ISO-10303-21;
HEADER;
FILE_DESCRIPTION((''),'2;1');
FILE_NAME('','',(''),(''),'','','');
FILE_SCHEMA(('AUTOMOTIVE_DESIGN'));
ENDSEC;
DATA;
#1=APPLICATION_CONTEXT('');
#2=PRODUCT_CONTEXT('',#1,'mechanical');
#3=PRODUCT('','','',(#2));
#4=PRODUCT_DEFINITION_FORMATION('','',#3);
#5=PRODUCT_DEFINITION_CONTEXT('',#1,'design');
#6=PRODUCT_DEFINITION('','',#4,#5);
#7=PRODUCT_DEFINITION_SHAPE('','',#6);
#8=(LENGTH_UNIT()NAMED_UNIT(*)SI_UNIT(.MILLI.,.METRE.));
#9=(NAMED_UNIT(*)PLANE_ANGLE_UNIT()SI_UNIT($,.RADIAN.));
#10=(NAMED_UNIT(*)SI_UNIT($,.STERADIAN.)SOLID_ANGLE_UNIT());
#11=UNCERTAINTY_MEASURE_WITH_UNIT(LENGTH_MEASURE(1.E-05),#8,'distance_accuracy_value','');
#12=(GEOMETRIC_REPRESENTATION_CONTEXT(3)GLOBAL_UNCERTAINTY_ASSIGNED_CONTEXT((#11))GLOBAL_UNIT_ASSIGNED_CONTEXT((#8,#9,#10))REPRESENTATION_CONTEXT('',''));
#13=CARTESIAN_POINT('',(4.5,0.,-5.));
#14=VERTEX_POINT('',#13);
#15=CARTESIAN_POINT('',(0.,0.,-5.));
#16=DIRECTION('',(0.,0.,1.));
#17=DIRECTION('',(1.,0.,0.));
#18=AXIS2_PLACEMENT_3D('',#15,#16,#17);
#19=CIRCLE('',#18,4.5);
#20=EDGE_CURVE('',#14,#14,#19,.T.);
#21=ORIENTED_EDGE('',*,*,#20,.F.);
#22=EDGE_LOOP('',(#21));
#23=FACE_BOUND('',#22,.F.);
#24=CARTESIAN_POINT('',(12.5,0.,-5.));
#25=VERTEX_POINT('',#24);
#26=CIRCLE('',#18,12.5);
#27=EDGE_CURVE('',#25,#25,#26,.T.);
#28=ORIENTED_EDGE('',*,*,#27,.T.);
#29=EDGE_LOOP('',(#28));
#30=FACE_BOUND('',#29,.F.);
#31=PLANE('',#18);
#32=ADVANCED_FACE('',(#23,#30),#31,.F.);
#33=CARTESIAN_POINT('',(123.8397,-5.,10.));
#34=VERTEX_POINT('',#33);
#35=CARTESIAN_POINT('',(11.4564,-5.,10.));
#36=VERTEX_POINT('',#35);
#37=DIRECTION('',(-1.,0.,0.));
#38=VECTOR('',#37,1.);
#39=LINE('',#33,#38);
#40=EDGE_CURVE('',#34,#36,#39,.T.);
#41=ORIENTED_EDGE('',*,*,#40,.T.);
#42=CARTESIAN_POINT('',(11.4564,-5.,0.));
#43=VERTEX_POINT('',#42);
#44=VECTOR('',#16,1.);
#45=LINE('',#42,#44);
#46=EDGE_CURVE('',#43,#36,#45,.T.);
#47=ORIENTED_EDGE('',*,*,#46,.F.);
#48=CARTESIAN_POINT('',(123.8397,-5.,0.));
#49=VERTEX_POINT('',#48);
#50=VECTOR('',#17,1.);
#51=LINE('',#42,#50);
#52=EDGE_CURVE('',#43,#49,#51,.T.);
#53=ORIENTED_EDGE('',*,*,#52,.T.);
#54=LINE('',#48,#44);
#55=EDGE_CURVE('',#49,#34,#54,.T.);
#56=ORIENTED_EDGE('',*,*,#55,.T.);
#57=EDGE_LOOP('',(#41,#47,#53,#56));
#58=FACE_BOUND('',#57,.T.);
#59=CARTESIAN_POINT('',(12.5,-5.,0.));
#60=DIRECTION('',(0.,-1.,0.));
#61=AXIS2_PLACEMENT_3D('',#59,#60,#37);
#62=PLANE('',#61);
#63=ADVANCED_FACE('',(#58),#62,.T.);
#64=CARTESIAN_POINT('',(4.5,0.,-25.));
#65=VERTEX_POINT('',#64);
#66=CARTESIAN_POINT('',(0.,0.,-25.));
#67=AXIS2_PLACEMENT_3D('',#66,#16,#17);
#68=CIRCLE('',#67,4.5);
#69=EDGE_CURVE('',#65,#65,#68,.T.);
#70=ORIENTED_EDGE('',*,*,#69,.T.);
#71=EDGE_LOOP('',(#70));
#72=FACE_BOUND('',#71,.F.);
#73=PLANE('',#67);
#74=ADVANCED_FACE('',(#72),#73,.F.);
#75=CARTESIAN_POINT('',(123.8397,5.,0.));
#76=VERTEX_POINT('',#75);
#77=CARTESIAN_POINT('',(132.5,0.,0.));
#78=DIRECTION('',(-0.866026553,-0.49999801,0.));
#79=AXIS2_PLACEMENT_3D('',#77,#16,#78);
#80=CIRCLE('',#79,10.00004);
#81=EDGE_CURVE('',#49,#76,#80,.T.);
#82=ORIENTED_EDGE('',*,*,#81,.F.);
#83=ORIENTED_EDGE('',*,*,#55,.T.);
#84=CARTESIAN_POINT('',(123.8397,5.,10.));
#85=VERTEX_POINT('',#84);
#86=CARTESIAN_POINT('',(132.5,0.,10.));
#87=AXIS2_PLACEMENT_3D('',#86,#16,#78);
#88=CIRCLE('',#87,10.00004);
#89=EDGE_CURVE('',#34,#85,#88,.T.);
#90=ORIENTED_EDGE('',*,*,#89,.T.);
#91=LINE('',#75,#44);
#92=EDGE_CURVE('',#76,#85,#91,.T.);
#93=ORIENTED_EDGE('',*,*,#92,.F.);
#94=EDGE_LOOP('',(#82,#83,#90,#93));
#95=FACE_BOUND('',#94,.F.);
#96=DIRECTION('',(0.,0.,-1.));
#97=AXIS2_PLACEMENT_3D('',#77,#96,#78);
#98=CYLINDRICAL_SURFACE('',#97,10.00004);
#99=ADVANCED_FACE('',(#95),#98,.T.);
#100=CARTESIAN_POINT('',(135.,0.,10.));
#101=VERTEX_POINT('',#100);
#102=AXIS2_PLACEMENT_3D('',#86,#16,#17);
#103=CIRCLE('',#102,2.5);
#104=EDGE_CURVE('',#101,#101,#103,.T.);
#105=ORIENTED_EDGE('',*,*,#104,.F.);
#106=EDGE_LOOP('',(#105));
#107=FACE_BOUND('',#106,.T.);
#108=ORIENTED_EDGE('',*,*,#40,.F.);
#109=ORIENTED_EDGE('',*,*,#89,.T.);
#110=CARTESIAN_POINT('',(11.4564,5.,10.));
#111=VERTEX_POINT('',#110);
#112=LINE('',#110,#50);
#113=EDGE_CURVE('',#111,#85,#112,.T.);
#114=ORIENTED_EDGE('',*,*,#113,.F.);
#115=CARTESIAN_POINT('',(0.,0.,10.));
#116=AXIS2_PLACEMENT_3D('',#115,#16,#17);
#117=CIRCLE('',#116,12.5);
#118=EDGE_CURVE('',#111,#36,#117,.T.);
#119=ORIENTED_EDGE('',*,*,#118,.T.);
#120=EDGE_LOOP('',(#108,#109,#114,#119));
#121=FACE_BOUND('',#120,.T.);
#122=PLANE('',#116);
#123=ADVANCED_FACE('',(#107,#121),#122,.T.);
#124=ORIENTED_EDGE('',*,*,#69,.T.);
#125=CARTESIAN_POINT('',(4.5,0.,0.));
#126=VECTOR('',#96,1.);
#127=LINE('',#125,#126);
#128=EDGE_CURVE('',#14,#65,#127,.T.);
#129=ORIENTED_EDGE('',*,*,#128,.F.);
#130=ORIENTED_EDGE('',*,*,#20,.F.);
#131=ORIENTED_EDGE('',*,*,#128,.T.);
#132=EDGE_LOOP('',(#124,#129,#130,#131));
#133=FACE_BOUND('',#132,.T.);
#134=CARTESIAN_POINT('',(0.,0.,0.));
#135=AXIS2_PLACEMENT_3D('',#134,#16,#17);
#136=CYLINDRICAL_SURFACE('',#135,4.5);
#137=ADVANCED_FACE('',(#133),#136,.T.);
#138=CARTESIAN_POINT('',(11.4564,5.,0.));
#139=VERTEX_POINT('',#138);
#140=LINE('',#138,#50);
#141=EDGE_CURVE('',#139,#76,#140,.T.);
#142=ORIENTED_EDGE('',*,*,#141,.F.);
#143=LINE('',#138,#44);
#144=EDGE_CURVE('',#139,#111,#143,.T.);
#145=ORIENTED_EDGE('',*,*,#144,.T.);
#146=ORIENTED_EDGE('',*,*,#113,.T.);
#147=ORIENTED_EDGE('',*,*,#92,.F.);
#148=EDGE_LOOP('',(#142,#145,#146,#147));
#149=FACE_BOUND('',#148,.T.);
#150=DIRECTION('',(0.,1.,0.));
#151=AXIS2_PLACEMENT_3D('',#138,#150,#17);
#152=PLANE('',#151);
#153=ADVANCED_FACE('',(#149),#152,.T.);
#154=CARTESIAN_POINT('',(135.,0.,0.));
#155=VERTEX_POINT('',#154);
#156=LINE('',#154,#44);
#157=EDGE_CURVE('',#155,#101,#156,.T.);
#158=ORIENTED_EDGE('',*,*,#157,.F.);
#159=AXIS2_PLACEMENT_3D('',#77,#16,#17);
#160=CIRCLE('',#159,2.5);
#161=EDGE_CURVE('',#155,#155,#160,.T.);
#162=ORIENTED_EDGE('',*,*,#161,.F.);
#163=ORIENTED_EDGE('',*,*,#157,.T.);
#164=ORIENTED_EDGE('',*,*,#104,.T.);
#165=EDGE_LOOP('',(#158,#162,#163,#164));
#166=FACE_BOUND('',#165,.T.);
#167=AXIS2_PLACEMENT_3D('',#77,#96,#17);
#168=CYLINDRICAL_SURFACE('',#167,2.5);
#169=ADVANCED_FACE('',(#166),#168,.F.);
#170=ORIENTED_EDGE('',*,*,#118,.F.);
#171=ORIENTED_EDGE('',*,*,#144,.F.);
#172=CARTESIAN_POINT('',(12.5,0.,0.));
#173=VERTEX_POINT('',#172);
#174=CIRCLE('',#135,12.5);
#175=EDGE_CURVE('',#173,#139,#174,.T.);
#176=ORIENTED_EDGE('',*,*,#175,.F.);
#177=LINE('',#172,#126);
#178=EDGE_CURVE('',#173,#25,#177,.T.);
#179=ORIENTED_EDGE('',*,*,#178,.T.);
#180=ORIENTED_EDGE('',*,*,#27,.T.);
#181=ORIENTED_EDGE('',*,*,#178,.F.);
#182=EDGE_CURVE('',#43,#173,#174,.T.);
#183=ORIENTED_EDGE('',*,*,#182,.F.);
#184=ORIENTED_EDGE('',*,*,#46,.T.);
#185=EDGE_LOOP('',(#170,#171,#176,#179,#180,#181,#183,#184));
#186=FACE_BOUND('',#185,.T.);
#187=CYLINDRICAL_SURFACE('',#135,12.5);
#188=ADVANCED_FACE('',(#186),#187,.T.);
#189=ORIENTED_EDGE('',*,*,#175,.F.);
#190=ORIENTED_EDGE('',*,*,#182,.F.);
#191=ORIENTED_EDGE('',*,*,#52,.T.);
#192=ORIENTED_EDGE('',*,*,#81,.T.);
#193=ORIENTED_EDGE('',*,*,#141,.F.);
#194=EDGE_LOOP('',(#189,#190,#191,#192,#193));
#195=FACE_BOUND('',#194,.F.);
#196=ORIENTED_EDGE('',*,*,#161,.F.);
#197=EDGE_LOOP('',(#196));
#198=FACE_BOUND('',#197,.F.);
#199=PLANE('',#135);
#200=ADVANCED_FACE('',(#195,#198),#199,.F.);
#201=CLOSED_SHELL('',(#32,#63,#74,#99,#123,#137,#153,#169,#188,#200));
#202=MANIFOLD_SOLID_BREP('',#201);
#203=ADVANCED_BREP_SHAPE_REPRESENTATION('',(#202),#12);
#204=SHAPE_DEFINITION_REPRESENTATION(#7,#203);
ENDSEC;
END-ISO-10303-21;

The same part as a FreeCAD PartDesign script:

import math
import FreeCAD as App
import Part
import Sketcher

V = App.Vector

doc = App.newDocument("Part")
params = doc.addObject("Spreadsheet::Sheet", "Params")
for row, (alias, value) in enumerate([
    ("sketch1_diameter", "5 mm"),
    ("sketch1_radius", "10 mm"),
    ("sketch1_radius2", "12.5 mm"),
    ("pad1_length", "10 mm"),
    ("sketch2_diameter", "25 mm"),
    ("sketch2_diameter2", "9 mm"),
    ("pad2_length", "5 mm"),
    ("sketch3_diameter", "9 mm"),
    ("pad3_length", "25 mm"),
], start=1):
    params.set(f"A{row}", alias)
    params.set(f"B{row}", "=" + value)
    params.setAlias(f"B{row}", alias)

body = doc.addObject("PartDesign::Body", "Body")

# Sketch on XY plane
sketch1 = body.newObject("Sketcher::SketchObject", "Sketch")
sketch1.AttachmentSupport = (doc.getObject("XY_Plane"), [""])
sketch1.MapMode = "FlatFace"
sketch1.addGeometry(Part.ArcOfCircle(Part.Circle(V(0, 0, 0), V(0, 0, 1), 12.5), math.radians(24), math.radians(336)), False)
sketch1.addGeometry(Part.LineSegment(V(11.5, -5, 0), V(123.8, -5, 0)), False)
sketch1.addGeometry(Part.ArcOfCircle(Part.Circle(V(132.5, 0, 0), V(0, 0, 1), 10), math.radians(-150), math.radians(150)), False)
sketch1.addGeometry(Part.LineSegment(V(123.8, 5, 0), V(11.5, 5, 0)), False)
sketch1.addGeometry(Part.Circle(V(132.5, 0, 0), V(0, 0, 1), 2.5), False)
sketch1.addConstraint(Sketcher.Constraint("Coincident", 0, 2, 1, 1))
sketch1.addConstraint(Sketcher.Constraint("Coincident", 1, 2, 2, 1))
sketch1.addConstraint(Sketcher.Constraint("Coincident", 2, 2, 3, 1))
sketch1.addConstraint(Sketcher.Constraint("Coincident", 3, 2, 0, 1))
sketch1.addConstraint(Sketcher.Constraint("Horizontal", 1))
sketch1.addConstraint(Sketcher.Constraint("Horizontal", 3))
sketch1.addConstraint(Sketcher.Constraint("Coincident", 0, 3, -1, 1))
sketch1.addConstraint(Sketcher.Constraint("Coincident", 4, 3, 2, 3))
sketch1.addConstraint(Sketcher.Constraint("Symmetric", 1, 2, 2, 2, -1))
sketch1.addConstraint(Sketcher.Constraint("Diameter", 4, 5.0))
sketch1.addConstraint(Sketcher.Constraint("Radius", 2, 10.0))
sketch1.addConstraint(Sketcher.Constraint("Radius", 0, 12.5))
sketch1.addConstraint(Sketcher.Constraint("DistanceY", 0, 2, -1, 1, 5.0))
sketch1.addConstraint(Sketcher.Constraint("DistanceX", -1, 1, 2, 3, 132.5))
sketch1.setExpression("Constraints[9]", "Params.sketch1_diameter")
sketch1.setExpression("Constraints[10]", "Params.sketch1_radius")
sketch1.setExpression("Constraints[11]", "Params.sketch1_radius2")
pad1 = body.newObject("PartDesign::Pad", "Pad")
pad1.Profile = sketch1
pad1.setExpression("Length", "Params.pad1_length")

# Sketch on XY plane
sketch2 = body.newObject("Sketcher::SketchObject", "Sketch001")
sketch2.AttachmentSupport = (doc.getObject("XY_Plane"), [""])
sketch2.MapMode = "FlatFace"
sketch2.addGeometry(Part.Circle(V(0, 0, 0), V(0, 0, 1), 12.5), False)
sketch2.addGeometry(Part.Circle(V(0, 0, 0), V(0, 0, 1), 4.5), False)
sketch2.addConstraint(Sketcher.Constraint("Coincident", 0, 3, -1, 1))
sketch2.addConstraint(Sketcher.Constraint("Coincident", 1, 3, -1, 1))
sketch2.addConstraint(Sketcher.Constraint("Diameter", 0, 25.0))
sketch2.addConstraint(Sketcher.Constraint("Diameter", 1, 9.0))
sketch2.setExpression("Constraints[2]", "Params.sketch2_diameter")
sketch2.setExpression("Constraints[3]", "Params.sketch2_diameter2")
pad2 = body.newObject("PartDesign::Pad", "Pad001")
pad2.Profile = sketch2
pad2.setExpression("Length", "Params.pad2_length")
pad2.Reversed = True

# Sketch on XY plane
sketch3 = body.newObject("Sketcher::SketchObject", "Sketch002")
sketch3.AttachmentSupport = (doc.getObject("XY_Plane"), [""])
sketch3.MapMode = "FlatFace"
sketch3.addGeometry(Part.Circle(V(0, 0, 0), V(0, 0, 1), 4.5), False)
sketch3.addConstraint(Sketcher.Constraint("Coincident", 0, 3, -1, 1))
sketch3.addConstraint(Sketcher.Constraint("Diameter", 0, 9.0))
sketch3.setExpression("Constraints[1]", "Params.sketch3_diameter")
pad3 = body.newObject("PartDesign::Pad", "Pad002")
pad3.Profile = sketch3
pad3.setExpression("Length", "Params.pad3_length")
pad3.Reversed = True

doc.recompute()
